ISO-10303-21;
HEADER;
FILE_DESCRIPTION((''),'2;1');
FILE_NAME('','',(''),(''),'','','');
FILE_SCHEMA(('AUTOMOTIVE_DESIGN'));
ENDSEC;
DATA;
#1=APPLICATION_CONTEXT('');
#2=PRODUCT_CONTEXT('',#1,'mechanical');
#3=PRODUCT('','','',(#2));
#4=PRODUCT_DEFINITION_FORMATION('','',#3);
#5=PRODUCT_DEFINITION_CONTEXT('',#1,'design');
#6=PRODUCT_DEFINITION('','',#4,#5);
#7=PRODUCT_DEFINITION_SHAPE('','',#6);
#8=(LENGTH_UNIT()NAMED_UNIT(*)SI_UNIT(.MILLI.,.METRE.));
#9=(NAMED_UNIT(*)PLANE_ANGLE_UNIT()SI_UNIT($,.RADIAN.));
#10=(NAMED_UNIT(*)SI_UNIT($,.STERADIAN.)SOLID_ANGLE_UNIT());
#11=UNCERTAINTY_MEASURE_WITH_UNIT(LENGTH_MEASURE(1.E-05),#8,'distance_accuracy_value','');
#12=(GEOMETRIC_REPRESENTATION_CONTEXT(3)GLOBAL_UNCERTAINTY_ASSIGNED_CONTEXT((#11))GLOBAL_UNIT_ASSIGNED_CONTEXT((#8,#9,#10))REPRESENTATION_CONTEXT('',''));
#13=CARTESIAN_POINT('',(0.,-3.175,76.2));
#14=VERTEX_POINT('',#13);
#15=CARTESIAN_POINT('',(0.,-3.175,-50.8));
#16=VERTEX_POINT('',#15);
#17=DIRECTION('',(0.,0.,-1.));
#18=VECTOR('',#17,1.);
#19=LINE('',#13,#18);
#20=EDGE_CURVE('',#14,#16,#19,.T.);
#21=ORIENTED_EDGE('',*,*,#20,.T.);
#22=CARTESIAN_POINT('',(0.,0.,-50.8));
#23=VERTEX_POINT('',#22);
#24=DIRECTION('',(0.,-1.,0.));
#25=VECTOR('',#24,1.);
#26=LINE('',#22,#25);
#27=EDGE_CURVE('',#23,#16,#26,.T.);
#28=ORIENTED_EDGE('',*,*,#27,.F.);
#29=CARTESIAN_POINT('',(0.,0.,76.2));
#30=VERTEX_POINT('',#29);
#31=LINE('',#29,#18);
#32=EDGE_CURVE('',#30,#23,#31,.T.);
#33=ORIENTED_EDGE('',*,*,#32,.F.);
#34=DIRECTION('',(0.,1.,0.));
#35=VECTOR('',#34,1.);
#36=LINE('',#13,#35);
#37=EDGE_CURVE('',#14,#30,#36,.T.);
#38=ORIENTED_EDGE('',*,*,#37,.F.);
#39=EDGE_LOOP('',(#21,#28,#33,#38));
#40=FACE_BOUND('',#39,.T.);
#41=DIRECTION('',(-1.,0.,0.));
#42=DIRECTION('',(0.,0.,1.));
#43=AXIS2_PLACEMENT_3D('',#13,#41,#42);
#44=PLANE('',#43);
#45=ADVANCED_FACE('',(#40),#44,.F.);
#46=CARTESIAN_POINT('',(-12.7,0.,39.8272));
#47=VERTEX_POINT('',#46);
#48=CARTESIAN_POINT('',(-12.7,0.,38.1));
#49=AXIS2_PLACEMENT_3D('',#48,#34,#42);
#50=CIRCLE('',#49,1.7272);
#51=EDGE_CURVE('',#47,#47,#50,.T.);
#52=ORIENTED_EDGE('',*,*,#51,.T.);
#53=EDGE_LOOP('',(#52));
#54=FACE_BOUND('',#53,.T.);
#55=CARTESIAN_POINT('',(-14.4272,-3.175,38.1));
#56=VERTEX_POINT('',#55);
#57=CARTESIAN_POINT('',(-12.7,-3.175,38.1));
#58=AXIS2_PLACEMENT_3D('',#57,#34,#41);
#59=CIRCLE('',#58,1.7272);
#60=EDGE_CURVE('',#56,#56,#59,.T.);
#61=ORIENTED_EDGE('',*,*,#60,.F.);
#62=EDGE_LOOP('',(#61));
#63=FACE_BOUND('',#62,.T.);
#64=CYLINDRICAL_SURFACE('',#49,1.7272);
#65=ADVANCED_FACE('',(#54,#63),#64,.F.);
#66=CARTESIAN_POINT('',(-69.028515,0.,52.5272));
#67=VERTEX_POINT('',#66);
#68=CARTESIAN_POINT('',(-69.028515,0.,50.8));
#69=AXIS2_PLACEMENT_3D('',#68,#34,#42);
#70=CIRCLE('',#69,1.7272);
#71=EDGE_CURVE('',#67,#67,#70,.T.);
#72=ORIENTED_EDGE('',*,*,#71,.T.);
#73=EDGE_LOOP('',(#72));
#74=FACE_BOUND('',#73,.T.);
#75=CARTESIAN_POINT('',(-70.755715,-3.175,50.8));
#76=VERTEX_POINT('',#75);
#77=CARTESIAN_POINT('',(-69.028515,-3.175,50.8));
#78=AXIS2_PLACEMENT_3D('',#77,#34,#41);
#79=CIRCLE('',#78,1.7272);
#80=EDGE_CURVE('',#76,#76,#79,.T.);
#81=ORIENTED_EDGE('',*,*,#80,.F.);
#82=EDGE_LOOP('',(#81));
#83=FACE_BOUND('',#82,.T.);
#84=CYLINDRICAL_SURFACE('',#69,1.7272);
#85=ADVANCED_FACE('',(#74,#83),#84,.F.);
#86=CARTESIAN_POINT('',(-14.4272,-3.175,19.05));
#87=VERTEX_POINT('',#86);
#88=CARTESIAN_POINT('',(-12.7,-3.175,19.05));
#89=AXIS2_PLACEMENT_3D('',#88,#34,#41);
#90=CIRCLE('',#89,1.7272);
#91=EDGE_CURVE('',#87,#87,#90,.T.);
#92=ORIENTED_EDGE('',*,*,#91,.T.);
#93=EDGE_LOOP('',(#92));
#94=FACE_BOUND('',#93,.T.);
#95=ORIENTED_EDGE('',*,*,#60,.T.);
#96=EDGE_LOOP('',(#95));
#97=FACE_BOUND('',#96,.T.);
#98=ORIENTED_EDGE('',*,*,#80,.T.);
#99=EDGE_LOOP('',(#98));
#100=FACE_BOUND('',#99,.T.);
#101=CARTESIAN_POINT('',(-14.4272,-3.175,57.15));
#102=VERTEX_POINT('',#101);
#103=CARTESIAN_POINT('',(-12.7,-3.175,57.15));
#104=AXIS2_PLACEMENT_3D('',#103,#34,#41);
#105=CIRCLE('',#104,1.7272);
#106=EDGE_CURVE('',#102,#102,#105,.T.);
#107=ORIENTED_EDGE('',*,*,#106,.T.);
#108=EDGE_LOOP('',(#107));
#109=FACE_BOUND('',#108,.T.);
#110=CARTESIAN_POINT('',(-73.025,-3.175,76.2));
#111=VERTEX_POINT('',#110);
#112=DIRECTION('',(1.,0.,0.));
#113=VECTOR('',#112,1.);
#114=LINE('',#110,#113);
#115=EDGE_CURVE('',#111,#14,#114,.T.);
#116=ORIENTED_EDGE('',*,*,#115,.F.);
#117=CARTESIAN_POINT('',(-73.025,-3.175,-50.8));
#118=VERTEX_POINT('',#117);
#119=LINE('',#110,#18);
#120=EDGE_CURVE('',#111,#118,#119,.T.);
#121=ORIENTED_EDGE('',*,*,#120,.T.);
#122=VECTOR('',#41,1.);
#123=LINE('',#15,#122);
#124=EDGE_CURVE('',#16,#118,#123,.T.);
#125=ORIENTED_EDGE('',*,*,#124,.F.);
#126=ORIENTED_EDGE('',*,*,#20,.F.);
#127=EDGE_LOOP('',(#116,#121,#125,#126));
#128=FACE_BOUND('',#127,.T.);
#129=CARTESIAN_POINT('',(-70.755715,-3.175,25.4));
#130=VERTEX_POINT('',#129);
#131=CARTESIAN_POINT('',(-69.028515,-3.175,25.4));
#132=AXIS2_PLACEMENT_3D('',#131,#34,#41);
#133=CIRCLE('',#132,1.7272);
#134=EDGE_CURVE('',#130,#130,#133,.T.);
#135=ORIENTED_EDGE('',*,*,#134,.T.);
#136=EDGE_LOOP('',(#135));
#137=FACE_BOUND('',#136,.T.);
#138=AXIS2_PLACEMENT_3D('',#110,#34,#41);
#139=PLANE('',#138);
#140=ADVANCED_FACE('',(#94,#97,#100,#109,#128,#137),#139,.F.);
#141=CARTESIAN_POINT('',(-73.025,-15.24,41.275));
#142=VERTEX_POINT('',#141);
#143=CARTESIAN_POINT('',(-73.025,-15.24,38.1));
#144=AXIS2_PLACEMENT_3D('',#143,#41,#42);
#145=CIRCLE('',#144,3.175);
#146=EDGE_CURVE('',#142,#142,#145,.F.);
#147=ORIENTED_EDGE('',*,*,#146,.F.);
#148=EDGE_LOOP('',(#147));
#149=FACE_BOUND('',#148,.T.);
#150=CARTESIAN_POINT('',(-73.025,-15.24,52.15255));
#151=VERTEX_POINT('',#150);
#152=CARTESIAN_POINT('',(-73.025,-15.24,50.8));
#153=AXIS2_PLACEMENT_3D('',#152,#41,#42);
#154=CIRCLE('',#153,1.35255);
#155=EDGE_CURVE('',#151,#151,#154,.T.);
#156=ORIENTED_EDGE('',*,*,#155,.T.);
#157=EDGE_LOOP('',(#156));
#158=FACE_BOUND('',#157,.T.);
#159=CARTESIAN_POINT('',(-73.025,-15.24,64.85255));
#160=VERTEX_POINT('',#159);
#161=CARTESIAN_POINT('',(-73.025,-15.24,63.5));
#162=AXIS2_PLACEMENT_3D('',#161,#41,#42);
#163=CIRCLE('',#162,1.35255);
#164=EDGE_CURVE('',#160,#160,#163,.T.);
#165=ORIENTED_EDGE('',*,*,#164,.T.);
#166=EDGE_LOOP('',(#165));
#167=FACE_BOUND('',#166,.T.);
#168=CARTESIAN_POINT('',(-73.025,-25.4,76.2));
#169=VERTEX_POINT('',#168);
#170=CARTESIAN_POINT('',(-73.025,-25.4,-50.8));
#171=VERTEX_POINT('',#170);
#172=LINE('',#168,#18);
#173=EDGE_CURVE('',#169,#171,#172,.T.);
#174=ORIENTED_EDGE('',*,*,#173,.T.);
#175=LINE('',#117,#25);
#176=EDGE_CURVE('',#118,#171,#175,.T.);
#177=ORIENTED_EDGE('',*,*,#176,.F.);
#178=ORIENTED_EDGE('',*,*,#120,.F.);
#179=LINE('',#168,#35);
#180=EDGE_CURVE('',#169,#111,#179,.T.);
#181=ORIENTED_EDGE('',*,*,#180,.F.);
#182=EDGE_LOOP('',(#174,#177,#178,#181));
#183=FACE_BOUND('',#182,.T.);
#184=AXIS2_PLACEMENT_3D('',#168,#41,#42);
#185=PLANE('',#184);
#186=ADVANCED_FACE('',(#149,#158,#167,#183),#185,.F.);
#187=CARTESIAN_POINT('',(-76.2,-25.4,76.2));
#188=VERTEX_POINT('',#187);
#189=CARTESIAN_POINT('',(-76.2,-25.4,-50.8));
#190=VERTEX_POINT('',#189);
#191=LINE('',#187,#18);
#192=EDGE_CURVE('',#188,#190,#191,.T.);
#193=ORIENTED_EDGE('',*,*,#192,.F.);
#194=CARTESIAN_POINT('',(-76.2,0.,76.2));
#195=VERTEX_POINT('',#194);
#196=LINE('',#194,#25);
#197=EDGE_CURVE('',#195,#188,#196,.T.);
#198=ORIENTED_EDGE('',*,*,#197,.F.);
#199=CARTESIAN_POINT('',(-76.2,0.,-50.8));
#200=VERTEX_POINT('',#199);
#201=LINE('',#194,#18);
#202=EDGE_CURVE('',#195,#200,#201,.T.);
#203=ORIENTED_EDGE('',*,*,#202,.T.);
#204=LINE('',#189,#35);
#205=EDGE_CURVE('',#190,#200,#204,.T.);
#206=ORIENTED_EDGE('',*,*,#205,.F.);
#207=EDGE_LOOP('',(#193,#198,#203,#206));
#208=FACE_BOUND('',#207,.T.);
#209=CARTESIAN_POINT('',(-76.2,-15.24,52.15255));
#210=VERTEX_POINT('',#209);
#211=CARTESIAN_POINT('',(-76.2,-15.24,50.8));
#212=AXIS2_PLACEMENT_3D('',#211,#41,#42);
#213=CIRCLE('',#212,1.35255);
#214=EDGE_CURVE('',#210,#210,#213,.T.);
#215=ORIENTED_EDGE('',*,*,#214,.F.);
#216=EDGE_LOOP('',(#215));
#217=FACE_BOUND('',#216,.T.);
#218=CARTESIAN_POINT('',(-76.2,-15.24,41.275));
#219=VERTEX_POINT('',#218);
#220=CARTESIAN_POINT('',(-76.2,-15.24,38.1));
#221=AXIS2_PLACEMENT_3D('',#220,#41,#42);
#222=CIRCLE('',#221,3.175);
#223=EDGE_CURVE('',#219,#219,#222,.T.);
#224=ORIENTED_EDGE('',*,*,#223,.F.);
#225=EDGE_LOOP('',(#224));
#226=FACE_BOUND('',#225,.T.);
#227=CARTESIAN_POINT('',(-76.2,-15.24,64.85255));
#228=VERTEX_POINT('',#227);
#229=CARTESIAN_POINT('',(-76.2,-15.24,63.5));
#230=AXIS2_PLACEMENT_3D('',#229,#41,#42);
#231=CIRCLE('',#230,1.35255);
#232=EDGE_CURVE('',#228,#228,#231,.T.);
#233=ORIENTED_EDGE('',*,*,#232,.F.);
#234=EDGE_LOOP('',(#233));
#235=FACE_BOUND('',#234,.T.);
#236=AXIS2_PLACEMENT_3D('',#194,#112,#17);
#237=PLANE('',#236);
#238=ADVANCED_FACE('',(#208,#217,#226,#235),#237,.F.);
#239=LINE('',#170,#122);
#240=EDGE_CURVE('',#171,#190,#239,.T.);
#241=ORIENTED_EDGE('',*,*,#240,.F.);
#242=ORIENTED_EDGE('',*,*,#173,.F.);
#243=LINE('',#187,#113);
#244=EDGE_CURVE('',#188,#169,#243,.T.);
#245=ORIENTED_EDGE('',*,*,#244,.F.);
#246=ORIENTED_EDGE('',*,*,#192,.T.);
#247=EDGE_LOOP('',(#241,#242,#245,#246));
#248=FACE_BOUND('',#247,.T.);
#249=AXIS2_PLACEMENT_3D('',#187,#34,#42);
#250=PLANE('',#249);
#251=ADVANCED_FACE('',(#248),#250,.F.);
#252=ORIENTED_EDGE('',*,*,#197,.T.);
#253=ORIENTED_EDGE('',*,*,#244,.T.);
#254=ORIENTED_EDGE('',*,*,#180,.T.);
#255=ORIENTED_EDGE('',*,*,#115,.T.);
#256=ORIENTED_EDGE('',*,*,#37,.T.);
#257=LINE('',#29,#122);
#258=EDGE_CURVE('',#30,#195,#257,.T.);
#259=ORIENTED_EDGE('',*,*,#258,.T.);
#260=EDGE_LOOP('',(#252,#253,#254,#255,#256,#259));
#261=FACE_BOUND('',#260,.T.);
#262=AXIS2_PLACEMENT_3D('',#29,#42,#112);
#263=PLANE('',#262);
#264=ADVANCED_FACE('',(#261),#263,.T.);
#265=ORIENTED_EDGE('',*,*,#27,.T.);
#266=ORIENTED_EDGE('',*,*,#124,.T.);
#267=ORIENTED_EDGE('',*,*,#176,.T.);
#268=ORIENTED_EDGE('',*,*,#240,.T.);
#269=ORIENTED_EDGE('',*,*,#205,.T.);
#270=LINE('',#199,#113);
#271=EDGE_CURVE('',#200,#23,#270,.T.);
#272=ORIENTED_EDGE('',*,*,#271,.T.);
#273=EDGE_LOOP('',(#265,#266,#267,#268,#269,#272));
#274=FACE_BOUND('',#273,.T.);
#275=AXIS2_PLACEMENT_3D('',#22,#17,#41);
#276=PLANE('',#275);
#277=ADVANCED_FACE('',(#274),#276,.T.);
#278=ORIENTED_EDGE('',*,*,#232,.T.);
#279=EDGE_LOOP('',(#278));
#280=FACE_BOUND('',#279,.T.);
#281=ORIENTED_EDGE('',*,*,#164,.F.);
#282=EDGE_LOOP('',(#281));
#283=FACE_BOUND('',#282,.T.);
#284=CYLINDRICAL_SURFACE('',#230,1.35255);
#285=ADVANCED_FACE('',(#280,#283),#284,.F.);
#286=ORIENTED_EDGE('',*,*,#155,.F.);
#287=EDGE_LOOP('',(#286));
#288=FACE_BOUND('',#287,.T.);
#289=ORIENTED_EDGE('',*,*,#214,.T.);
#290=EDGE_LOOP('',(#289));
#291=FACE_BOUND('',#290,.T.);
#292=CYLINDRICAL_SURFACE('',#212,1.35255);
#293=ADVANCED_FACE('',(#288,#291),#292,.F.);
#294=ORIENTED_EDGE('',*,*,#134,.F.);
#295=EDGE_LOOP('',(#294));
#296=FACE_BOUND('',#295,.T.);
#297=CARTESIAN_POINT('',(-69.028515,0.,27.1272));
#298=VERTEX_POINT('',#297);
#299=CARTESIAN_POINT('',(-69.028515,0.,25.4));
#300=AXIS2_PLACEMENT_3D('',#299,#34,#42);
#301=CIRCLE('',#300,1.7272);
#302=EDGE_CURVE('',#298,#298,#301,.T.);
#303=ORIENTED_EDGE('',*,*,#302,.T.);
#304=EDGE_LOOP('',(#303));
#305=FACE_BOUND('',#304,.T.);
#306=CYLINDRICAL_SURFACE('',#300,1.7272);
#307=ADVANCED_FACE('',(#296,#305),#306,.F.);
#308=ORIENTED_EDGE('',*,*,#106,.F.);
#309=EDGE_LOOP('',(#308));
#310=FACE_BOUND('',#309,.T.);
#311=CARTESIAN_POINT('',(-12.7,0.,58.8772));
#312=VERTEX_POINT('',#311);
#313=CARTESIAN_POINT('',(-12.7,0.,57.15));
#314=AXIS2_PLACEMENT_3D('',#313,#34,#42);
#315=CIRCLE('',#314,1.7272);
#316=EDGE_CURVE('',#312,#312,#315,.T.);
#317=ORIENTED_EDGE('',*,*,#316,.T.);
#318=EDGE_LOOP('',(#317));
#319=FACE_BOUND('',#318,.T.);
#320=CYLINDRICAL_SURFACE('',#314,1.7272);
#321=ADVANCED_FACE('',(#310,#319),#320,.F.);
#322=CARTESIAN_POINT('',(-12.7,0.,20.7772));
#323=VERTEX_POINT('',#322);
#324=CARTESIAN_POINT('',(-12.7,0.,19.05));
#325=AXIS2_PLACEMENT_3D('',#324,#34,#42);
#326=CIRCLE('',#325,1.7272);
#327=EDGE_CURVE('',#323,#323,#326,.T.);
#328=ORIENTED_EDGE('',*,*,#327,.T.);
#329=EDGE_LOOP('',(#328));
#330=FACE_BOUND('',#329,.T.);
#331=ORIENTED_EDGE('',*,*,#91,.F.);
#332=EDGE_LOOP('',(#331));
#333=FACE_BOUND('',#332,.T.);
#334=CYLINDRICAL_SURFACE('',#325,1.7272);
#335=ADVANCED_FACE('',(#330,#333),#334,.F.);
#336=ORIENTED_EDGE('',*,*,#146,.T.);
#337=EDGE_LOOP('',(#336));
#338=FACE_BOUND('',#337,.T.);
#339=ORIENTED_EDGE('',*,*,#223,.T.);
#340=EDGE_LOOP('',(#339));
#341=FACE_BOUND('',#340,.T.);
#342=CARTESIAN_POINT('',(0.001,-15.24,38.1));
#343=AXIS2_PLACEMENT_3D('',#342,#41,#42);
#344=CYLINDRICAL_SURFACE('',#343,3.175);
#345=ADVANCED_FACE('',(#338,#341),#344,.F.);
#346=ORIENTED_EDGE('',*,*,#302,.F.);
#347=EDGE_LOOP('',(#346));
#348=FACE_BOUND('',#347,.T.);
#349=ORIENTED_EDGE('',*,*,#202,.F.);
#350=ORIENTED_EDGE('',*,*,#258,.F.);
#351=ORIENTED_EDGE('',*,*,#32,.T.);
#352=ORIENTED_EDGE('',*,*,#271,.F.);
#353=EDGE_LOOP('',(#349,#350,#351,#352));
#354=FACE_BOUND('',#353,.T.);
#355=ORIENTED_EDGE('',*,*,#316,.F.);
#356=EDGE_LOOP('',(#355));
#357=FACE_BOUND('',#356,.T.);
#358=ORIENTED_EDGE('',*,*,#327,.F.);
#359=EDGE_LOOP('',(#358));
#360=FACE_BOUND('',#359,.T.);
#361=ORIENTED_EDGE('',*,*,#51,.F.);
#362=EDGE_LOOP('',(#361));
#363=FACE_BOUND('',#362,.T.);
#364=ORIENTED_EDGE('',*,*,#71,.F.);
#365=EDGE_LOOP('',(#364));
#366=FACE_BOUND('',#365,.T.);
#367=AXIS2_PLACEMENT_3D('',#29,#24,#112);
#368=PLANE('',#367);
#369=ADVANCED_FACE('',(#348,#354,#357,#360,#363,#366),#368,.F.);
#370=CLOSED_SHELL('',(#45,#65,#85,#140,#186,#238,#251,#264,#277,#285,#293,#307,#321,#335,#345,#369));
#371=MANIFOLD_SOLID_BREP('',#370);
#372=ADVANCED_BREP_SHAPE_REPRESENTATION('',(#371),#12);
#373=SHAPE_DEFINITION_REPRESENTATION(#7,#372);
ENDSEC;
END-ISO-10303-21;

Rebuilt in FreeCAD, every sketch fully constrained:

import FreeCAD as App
import Part
import Sketcher
from FreeCAD import Vector
Q = App.Units.Quantity

doc = App.newDocument("Part")
body = doc.addObject("PartDesign::Body", "Body")

sketch1 = doc.addObject("Sketcher::SketchObject", "Sketch")
body.addObject(sketch1)
sketch1.AttachmentSupport = (doc.XY_Plane, [""])
sketch1.MapMode = "FlatFace"
sketch1.addGeometry([
    Part.LineSegment(Vector(0, 0, 0), Vector(-76.2, 0, 0)),
    Part.LineSegment(Vector(-76.2, 0, 0), Vector(-76.2, -25.4, 0)),
    Part.LineSegment(Vector(-76.2, -25.4, 0), Vector(-73, -25.4, 0)),
    Part.LineSegment(Vector(-73, -25.4, 0), Vector(-73, -3.2, 0)),
    Part.LineSegment(Vector(-73, -3.2, 0), Vector(0, -3.2, 0)),
    Part.LineSegment(Vector(0, -3.2, 0), Vector(0, 0, 0)),
], False)
sketch1.addConstraint([
    Sketcher.Constraint("Coincident", 0, 2, 1, 1),
    Sketcher.Constraint("Coincident", 1, 2, 2, 1),
    Sketcher.Constraint("Coincident", 2, 2, 3, 1),
    Sketcher.Constraint("Coincident", 3, 2, 4, 1),
    Sketcher.Constraint("Coincident", 4, 2, 5, 1),
    Sketcher.Constraint("Coincident", 5, 2, 0, 1),
    Sketcher.Constraint("Horizontal", 0),
    Sketcher.Constraint("Vertical", 1),
    Sketcher.Constraint("Horizontal", 2),
    Sketcher.Constraint("Vertical", 3),
    Sketcher.Constraint("Horizontal", 4),
    Sketcher.Constraint("Vertical", 5),
    Sketcher.Constraint("Coincident", 5, 2, -1, 1),
    Sketcher.Constraint("Equal", 2, 5),
    Sketcher.Constraint("DistanceX", 0, 2, 0, 1, Q("3 in")),
    Sketcher.Constraint("DistanceY", 1, 2, 1, 1, Q("1 in")),
    Sketcher.Constraint("DistanceX", 2, 1, 2, 2, Q("0.125 in")),
])
pad1 = doc.addObject("PartDesign::Pad", "Pad")
body.addObject(pad1)
pad1.Profile = sketch1
pad1.Length = Q("3 in")

sketch2 = doc.addObject("Sketcher::SketchObject", "Sketch001")
body.addObject(sketch2)
sketch2.AttachmentSupport = (doc.YZ_Plane, [""])
sketch2.MapMode = "FlatFace"
sketch2.AttachmentOffset = App.Placement(Vector(0, 0, -3 * 25.4), App.Rotation())
sketch2.addGeometry(Part.Circle(Vector(-15.2, 38.1, 0), Vector(0, 0, 1), 3.2), False)
sketch2.addConstraint([
    Sketcher.Constraint("Diameter", 0, Q("0.25 in")),
    Sketcher.Constraint("DistanceX", 0, 3, -1, 1, Q("0.6 in")),
    Sketcher.Constraint("DistanceY", -1, 1, 0, 3, Q("1.5 in")),
])
pocket1 = doc.addObject("PartDesign::Pocket", "Pocket")
body.addObject(pocket1)
pocket1.Profile = sketch2
pocket1.Type = "UpToFirst"
pocket1.Reversed = True

sketch3 = doc.addObject("Sketcher::SketchObject", "Sketch002")
body.addObject(sketch3)
sketch3.AttachmentSupport = (doc.XZ_Plane, [""])
sketch3.MapMode = "FlatFace"
sketch3.addGeometry([
    Part.Circle(Vector(-12.7, 19.1, 0), Vector(0, 0, 1), 1.7),
    Part.Circle(Vector(-12.7, 38.1, 0), Vector(0, 0, 1), 1.7),
    Part.Circle(Vector(-12.7, 57.1, 0), Vector(0, 0, 1), 1.7),
], False)
sketch3.addConstraint([
    Sketcher.Constraint("Equal", 0, 1),
    Sketcher.Constraint("Equal", 1, 2),
    Sketcher.Constraint("Vertical", 0, 3, 1, 3),
    Sketcher.Constraint("Vertical", 1, 3, 2, 3),
    Sketcher.Constraint("Diameter", 0, Q("0.136 in")),
    Sketcher.Constraint("DistanceX", 0, 3, -1, 1, Q("0.5 in")),
    Sketcher.Constraint("DistanceY", -1, 1, 1, 3, Q("1.5 in")),
    Sketcher.Constraint("DistanceY", 0, 3, 2, 3, Q("1.5 in")),
    Sketcher.Constraint("DistanceY", -1, 1, 0, 3, Q("0.75 in")),
])
doc.recompute()
hole = doc.addObject("PartDesign::Hole", "Hole")
body.addObject(hole)
hole.Profile = sketch3
hole.ThreadType = "None"
hole.Diameter = Q("0.136 in")
hole.DepthType = "ThroughAll"
hole.Reversed = True

sketch4 = doc.addObject("Sketcher::SketchObject", "Sketch003")
body.addObject(sketch4)
sketch4.AttachmentSupport = (doc.XZ_Plane, [""])
sketch4.MapMode = "FlatFace"
sketch4.addGeometry([
    Part.Circle(Vector(-69, 25.4, 0), Vector(0, 0, 1), 1.7),
    Part.Circle(Vector(-69, 50.8, 0), Vector(0, 0, 1), 1.7),
], False)
sketch4.addConstraint([
    Sketcher.Constraint("Equal", 0, 1),
    Sketcher.Constraint("Vertical", 0, 3, 1, 3),
    Sketcher.Constraint("Diameter", 0, Q("0.136 in")),
    Sketcher.Constraint("DistanceY", -1, 1, 0, 3, Q("1 in")),
    Sketcher.Constraint("DistanceY", -1, 1, 1, 3, Q("2 in")),
    Sketcher.Constraint("DistanceX", 0, 3, -1, 1, Q("69.028515 mm")),
])
doc.recompute()
hole2 = doc.addObject("PartDesign::Hole", "Hole001")
body.addObject(hole2)
hole2.Profile = sketch4
hole2.ThreadType = "None"
hole2.Diameter = Q("0.136 in")
hole2.DepthType = "ThroughAll"
hole2.Reversed = True

sketch5 = doc.addObject("Sketcher::SketchObject", "Sketch004")
body.addObject(sketch5)
sketch5.AttachmentSupport = (doc.YZ_Plane, [""])
sketch5.MapMode = "FlatFace"
sketch5.AttachmentOffset = App.Placement(Vector(0, 0, -3 * 25.4), App.Rotation())
sketch5.addGeometry([
    Part.Circle(Vector(-15.2, 50.8, 0), Vector(0, 0, 1), 1.4),
    Part.Circle(Vector(-15.2, 63.5, 0), Vector(0, 0, 1), 1.4),
], False)
sketch5.addConstraint([
    Sketcher.Constraint("Equal", 0, 1),
    Sketcher.Constraint("Vertical", 0, 3, 1, 3),
    Sketcher.Constraint("DistanceY", -1, 1, 0, 3, Q("2 in")),
    Sketcher.Constraint("Diameter", 0, Q("0.1065 in")),
    Sketcher.Constraint("DistanceX", 0, 3, -1, 1, Q("0.6 in")),
    Sketcher.Constraint("DistanceY", -1, 1, 1, 3, Q("2.5 in")),
])
doc.recompute()
hole3 = doc.addObject("PartDesign::Hole", "Hole002")
body.addObject(hole3)
hole3.Profile = sketch5
hole3.ThreadType = "None"
hole3.Diameter = Q("0.1065 in")
hole3.DepthType = "ThroughAll"
hole3.Reversed = True

sketch6 = doc.addObject("Sketcher::SketchObject", "Sketch005")
body.addObject(sketch6)
sketch6.AttachmentSupport = (doc.XY_Plane, [""])
sketch6.MapMode = "FlatFace"
sketch6.addGeometry([
    Part.LineSegment(Vector(0, -3.2, 0), Vector(-73, -3.2, 0)),
    Part.LineSegment(Vector(-73, -3.2, 0), Vector(-73, -25.4, 0)),
    Part.LineSegment(Vector(-73, -25.4, 0), Vector(-76.2, -25.4, 0)),
    Part.LineSegment(Vector(-76.2, -25.4, 0), Vector(-76.2, 0, 0)),
    Part.LineSegment(Vector(-76.2, 0, 0), Vector(0, 0, 0)),
    Part.LineSegment(Vector(0, 0, 0), Vector(0, -3.2, 0)),
], False)
sketch6.addConstraint([
    Sketcher.Constraint("Coincident", 0, 2, 1, 1),
    Sketcher.Constraint("Coincident", 1, 2, 2, 1),
    Sketcher.Constraint("Coincident", 2, 2, 3, 1),
    Sketcher.Constraint("Coincident", 3, 2, 4, 1),
    Sketcher.Constraint("Coincident", 4, 2, 5, 1),
    Sketcher.Constraint("Coincident", 5, 2, 0, 1),
    Sketcher.Constraint("Horizontal", 0),
    Sketcher.Constraint("Vertical", 1),
    Sketcher.Constraint("Horizontal", 2),
    Sketcher.Constraint("Vertical", 3),
    Sketcher.Constraint("Horizontal", 4),
    Sketcher.Constraint("Vertical", 5),
    Sketcher.Constraint("Coincident", 4, 2, -1, 1),
    Sketcher.Constraint("Equal", 2, 5),
    Sketcher.Constraint("DistanceX", 4, 1, 4, 2, Q("3 in")),
    Sketcher.Constraint("DistanceY", 3, 1, 3, 2, Q("1 in")),
    Sketcher.Constraint("DistanceX", 0, 2, 0, 1, Q("2.875 in")),
])
pad2 = doc.addObject("PartDesign::Pad", "Pad001")
body.addObject(pad2)
pad2.Profile = sketch6
pad2.Length = Q("2 in")
pad2.Reversed = True

doc.recompute()
